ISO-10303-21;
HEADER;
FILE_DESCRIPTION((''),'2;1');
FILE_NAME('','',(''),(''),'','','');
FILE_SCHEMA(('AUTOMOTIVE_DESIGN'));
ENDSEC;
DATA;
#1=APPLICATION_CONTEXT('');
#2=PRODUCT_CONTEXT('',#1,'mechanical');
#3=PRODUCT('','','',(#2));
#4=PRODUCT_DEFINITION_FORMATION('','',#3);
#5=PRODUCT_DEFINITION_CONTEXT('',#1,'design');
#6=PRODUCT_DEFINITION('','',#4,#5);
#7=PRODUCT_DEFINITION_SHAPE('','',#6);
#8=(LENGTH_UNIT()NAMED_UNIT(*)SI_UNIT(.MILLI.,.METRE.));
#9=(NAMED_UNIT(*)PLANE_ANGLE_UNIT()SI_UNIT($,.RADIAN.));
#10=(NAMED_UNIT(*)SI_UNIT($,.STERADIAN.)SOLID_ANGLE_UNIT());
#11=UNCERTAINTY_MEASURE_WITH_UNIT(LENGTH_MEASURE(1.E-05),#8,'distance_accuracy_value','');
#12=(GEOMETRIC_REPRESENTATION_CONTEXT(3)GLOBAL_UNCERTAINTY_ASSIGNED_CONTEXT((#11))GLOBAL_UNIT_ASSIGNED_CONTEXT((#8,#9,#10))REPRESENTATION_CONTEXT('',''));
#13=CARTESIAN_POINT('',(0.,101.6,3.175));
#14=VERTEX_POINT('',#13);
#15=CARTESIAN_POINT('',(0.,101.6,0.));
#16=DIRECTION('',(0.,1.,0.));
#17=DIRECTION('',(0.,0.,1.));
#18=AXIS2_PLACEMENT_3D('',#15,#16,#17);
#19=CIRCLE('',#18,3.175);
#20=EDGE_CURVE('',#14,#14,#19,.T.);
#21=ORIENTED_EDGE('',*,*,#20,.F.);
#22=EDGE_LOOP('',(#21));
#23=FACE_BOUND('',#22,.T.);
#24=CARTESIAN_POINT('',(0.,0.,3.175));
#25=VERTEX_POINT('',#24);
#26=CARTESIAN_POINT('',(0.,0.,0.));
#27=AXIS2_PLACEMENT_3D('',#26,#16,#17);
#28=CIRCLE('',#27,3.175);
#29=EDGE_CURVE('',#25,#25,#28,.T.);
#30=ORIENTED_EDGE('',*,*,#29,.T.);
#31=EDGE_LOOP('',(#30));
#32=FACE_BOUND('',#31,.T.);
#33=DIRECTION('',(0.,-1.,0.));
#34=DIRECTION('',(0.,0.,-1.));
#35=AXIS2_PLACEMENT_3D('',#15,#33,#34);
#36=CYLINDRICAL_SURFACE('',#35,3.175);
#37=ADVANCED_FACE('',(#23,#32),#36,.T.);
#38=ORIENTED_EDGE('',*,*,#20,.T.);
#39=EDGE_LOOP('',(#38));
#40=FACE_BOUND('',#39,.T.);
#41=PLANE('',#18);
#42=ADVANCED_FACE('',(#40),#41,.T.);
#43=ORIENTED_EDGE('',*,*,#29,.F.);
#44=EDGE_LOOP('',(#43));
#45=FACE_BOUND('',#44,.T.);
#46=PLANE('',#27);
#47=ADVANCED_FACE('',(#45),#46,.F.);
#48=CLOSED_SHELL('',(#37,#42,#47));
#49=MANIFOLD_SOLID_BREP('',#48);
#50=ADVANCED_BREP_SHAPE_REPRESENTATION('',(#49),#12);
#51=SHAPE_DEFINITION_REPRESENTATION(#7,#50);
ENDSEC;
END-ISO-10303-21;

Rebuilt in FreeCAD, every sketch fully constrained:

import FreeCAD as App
import Part
import Sketcher
Q = App.Units.Quantity

doc = App.newDocument("Part")
params = doc.addObject("Spreadsheet::Sheet", "Params")
for row, (alias, value) in enumerate([
    ("sketch1_diameter", "0.25 in"),
    ("pad1_length", "4 in"),
], start=1):
    params.set(f"A{row}", alias)
    params.set(f"B{row}", "=" + value)
    params.setAlias(f"B{row}", alias)

body = doc.addObject("PartDesign::Body", "Body")

# Sketch on XZ plane
sketch1 = body.newObject("Sketcher::SketchObject", "Sketch")
sketch1.AttachmentSupport = (doc.getObject("XZ_Plane"), [""])
sketch1.MapMode = "FlatFace"
sketch1.addGeometry(Part.Circle(App.Vector(0, 0, 0), App.Vector(0, 0, 1), 3.2), False)
sketch1.addConstraint(Sketcher.Constraint("Coincident", 0, 3, -1, 1))
sketch1.addConstraint(Sketcher.Constraint("Diameter", 0, Q("0.25 in")))
sketch1.setExpression("Constraints[1]", "Params.sketch1_diameter")
pad1 = body.newObject("PartDesign::Pad", "Pad")
pad1.Profile = sketch1
pad1.setExpression("Length", "Params.pad1_length")
pad1.Reversed = True

doc.recompute()
